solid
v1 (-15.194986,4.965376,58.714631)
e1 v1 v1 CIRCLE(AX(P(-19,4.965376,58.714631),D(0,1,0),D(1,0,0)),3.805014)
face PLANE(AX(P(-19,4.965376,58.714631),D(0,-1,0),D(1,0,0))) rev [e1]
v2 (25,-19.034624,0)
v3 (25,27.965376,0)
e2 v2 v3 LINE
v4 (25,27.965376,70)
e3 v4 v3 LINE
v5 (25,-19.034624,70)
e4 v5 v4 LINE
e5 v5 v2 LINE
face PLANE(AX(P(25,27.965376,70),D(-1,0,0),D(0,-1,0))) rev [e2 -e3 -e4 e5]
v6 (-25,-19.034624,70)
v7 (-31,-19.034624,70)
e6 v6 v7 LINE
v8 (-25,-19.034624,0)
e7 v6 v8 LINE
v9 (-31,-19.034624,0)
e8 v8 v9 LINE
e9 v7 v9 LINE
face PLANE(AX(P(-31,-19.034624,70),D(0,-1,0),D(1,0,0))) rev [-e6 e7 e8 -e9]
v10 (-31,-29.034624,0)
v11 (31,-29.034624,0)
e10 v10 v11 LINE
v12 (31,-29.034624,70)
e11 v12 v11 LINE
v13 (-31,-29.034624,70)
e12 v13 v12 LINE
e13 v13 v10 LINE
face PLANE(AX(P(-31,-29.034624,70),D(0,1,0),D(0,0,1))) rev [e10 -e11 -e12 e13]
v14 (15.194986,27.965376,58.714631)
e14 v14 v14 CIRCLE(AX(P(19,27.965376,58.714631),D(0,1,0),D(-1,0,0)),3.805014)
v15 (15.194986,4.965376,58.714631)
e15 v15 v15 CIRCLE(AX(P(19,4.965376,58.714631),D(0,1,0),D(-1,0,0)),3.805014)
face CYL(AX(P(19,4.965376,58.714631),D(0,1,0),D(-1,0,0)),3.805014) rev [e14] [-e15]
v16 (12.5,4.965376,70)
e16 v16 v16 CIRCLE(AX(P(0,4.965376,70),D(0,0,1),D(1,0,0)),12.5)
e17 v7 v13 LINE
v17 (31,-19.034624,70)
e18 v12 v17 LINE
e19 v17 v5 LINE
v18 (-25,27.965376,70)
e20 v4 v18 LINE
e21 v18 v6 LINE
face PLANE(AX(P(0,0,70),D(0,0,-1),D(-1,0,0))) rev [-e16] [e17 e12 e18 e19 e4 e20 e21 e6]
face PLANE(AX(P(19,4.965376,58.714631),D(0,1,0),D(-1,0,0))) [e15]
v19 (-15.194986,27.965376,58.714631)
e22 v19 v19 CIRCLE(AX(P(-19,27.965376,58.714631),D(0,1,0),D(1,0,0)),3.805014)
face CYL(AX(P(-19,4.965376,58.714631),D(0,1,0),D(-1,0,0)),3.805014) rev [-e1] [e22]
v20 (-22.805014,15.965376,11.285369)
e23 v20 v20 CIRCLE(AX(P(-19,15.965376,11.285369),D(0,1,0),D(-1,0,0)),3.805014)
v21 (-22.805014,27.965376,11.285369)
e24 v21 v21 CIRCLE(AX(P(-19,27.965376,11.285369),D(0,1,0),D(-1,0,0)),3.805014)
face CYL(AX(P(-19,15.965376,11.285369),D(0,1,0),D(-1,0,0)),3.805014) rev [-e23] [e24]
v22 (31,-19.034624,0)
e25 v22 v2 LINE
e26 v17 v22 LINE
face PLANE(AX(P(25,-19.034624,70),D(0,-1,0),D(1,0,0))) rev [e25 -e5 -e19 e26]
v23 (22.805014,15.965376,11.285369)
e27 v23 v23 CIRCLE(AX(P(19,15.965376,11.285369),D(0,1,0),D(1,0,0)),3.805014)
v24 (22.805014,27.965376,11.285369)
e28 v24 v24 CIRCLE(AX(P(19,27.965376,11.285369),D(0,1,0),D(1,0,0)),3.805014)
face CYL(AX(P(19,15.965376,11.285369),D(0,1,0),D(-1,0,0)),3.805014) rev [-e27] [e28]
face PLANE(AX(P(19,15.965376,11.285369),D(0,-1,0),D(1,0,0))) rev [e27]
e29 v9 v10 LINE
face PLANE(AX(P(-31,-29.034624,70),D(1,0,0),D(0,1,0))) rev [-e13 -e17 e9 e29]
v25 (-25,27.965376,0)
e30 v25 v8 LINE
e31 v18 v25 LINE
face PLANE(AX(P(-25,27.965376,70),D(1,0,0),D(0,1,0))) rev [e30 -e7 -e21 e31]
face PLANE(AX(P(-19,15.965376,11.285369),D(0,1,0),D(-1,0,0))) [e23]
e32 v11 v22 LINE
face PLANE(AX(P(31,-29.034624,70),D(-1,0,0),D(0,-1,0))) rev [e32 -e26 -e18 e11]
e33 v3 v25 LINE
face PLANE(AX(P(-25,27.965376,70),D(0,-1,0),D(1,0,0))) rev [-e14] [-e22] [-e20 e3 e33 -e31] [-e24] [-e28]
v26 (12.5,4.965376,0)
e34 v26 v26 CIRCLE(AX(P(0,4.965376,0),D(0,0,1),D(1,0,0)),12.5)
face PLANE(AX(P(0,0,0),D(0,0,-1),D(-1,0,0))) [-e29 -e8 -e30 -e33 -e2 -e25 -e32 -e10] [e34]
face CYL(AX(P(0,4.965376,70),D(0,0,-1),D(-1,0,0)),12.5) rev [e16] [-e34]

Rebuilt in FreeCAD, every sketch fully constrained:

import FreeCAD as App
import Part
import Sketcher

doc = App.newDocument("Part")
params = doc.addObject("Spreadsheet::Sheet", "Params")
for row, (alias, value) in enumerate([
    ("sketch1_diameter", "25 mm"),
    ("sketch1_width", "6 mm"),
    ("sketch1_width2", "50 mm"),
    ("sketch1_height", "47 mm"),
    ("sketch1_height2", "10 mm"),
    ("pad1_length", "70 mm"),
    ("pocket1_length", "23 mm"),
    ("pocket2_length", "12 mm"),
], start=1):
    params.set(f"A{row}", alias)
    params.set(f"B{row}", "=" + value)
    params.setAlias(f"B{row}", alias)

body = doc.addObject("PartDesign::Body", "Body")

# Sketch on XY plane
sketch1 = body.newObject("Sketcher::SketchObject", "Sketch")
sketch1.AttachmentSupport = (doc.getObject("XY_Plane"), [""])
sketch1.MapMode = "FlatFace"
sketch1.addGeometry([
    Part.LineSegment(App.Vector(31, -19, 0), App.Vector(25, -19, 0)),  # 0
    Part.LineSegment(App.Vector(25, -19, 0), App.Vector(25, 28, 0)),  # 1
    Part.LineSegment(App.Vector(25, 28, 0), App.Vector(-25, 28, 0)),  # 2
    Part.LineSegment(App.Vector(-25, 28, 0), App.Vector(-25, -19, 0)),  # 3
    Part.LineSegment(App.Vector(-25, -19, 0), App.Vector(-31, -19, 0)),  # 4
    Part.LineSegment(App.Vector(-31, -19, 0), App.Vector(-31, -29, 0)),  # 5
    Part.LineSegment(App.Vector(-31, -29, 0), App.Vector(31, -29, 0)),  # 6
    Part.LineSegment(App.Vector(31, -29, 0), App.Vector(31, -19, 0)),  # 7
    Part.Circle(App.Vector(0, 5, 0), App.Vector(0, 0, 1), 12),  # 8
], False)
sketch1.addConstraint([
    Sketcher.Constraint("Coincident", 0, 2, 1, 1),
    Sketcher.Constraint("Coincident", 1, 2, 2, 1),
    Sketcher.Constraint("Coincident", 2, 2, 3, 1),
    Sketcher.Constraint("Coincident", 3, 2, 4, 1),
    Sketcher.Constraint("Coincident", 4, 2, 5, 1),
    Sketcher.Constraint("Coincident", 5, 2, 6, 1),
    Sketcher.Constraint("Coincident", 6, 2, 7, 1),
    Sketcher.Constraint("Coincident", 7, 2, 0, 1),
    Sketcher.Constraint("Horizontal", 0),
    Sketcher.Constraint("Vertical", 1),
    Sketcher.Constraint("Horizontal", 2),
    Sketcher.Constraint("Vertical", 3),
    Sketcher.Constraint("Horizontal", 4),
    Sketcher.Constraint("Vertical", 5),
    Sketcher.Constraint("Horizontal", 6),
    Sketcher.Constraint("Vertical", 7),
    Sketcher.Constraint("Symmetric", 0, 2, 3, 2, -2),
    Sketcher.Constraint("PointOnObject", 8, 3, -2),
    Sketcher.Constraint("Equal", 0, 4),
    Sketcher.Constraint("Diameter", 8, 25.0),
    Sketcher.Constraint("DistanceX", 0, 2, 0, 1, 6.0),
    Sketcher.Constraint("DistanceX", 2, 2, 2, 1, 50.0),
    Sketcher.Constraint("DistanceY", 1, 1, 1, 2, 47.0),
    Sketcher.Constraint("DistanceY", 5, 2, 5, 1, 10.0),
    Sketcher.Constraint("DistanceY", 0, 2, 8, 3, 24.0),
    Sketcher.Constraint("DistanceY", -1, 1, 8, 3, 4.965376),
])
sketch1.setExpression("Constraints[19]", "Params.sketch1_diameter")
sketch1.setExpression("Constraints[20]", "Params.sketch1_width")
sketch1.setExpression("Constraints[21]", "Params.sketch1_width2")
sketch1.setExpression("Constraints[22]", "Params.sketch1_height")
sketch1.setExpression("Constraints[23]", "Params.sketch1_height2")
pad1 = body.newObject("PartDesign::Pad", "Pad")
pad1.Profile = sketch1
pad1.setExpression("Length", "Params.pad1_length")

# Sketch on XZ plane
sketch2 = body.newObject("Sketcher::SketchObject", "Sketch001")
sketch2.AttachmentSupport = (doc.getObject("XZ_Plane"), [""])
sketch2.MapMode = "FlatFace"
sketch2.AttachmentOffset = App.Placement(App.Vector(0, 0, -27.965376), App.Rotation())
sketch2.addGeometry([
    Part.Circle(App.Vector(19, 58.7, 0), App.Vector(0, 0, 1), 3.8),
    Part.Circle(App.Vector(-19, 58.7, 0), App.Vector(0, 0, 1), 3.8),
], False)
sketch2.addConstraint([
    Sketcher.Constraint("Equal", 0, 1),
    Sketcher.Constraint("Symmetric", 0, 3, 1, 3, -2),
    Sketcher.Constraint("DistanceX", -1, 1, 0, 3, 19.0),
    Sketcher.Constraint("Diameter", 0, 7.610027),
    Sketcher.Constraint("DistanceY", -1, 1, 0, 3, 58.714631),
])
pocket1 = body.newObject("PartDesign::Pocket", "Pocket")
pocket1.Profile = sketch2
pocket1.setExpression("Length", "Params.pocket1_length")
pocket1.Reversed = True

# Sketch on XZ plane
sketch3 = body.newObject("Sketcher::SketchObject", "Sketch002")
sketch3.AttachmentSupport = (doc.getObject("XZ_Plane"), [""])
sketch3.MapMode = "FlatFace"
sketch3.AttachmentOffset = App.Placement(App.Vector(0, 0, -27.965376), App.Rotation())
sketch3.addGeometry([
    Part.Circle(App.Vector(19, 11.3, 0), App.Vector(0, 0, 1), 3.8),
    Part.Circle(App.Vector(-19, 11.3, 0), App.Vector(0, 0, 1), 3.8),
], False)
sketch3.addConstraint([
    Sketcher.Constraint("Equal", 0, 1),
    Sketcher.Constraint("Symmetric", 0, 3, 1, 3, -2),
    Sketcher.Constraint("DistanceX", -1, 1, 0, 3, 19.0),
    Sketcher.Constraint("Diameter", 0, 7.610027),
    Sketcher.Constraint("DistanceY", -1, 1, 0, 3, 11.285369),
])
pocket2 = body.newObject("PartDesign::Pocket", "Pocket001")
pocket2.Profile = sketch3
pocket2.setExpression("Length", "Params.pocket2_length")
pocket2.Reversed = True

doc.recompute()
